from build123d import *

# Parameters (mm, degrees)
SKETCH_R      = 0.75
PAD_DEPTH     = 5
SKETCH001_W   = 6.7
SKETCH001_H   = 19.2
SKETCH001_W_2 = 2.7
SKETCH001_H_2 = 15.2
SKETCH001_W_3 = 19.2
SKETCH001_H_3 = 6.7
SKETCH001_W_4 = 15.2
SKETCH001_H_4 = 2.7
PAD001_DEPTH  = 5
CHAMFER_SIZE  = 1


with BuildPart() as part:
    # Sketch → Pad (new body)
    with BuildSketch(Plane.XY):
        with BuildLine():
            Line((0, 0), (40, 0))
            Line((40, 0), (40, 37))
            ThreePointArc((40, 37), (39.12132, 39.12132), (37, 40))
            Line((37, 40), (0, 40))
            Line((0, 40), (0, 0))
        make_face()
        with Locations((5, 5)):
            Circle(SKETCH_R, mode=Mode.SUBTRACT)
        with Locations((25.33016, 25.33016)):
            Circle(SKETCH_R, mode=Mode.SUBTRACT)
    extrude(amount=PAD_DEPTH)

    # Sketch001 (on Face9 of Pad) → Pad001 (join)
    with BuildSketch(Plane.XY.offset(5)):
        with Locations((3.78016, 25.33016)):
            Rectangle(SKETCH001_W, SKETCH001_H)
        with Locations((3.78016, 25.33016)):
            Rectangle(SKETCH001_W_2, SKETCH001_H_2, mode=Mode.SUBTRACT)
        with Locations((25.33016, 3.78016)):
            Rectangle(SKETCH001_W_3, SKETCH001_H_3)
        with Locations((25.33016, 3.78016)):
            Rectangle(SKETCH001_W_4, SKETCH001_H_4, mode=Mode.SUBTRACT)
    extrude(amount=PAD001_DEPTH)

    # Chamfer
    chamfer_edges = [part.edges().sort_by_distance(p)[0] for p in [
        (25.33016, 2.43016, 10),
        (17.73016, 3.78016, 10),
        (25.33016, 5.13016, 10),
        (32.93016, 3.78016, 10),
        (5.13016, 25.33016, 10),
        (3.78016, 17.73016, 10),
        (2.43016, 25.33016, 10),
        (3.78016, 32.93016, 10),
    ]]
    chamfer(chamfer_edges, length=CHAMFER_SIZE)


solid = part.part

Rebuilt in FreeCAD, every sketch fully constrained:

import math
import FreeCAD as App
import Part
import Sketcher
Q = App.Units.Quantity


def edges_at(feature, points):
    """Names of the edges that pass closest to the given points."""
    edges = feature.Shape.Edges
    near = lambda p: min(range(len(edges)), key=lambda i: edges[i].distToShape(Part.Vertex(*p))[0])
    return sorted({f"Edge{near(p) + 1}" for p in points})

doc = App.newDocument("Part")
body = doc.addObject("PartDesign::Body", "Body")

sketch1 = body.newObject("Sketcher::SketchObject", "Sketch")
sketch1.AttachmentSupport = (doc.getObject("XY_Plane"), [""])
sketch1.MapMode = "FlatFace"
sketch1.addGeometry([
    Part.LineSegment(App.Vector(0, 0, 0), App.Vector(40, 0, 0)),
    Part.LineSegment(App.Vector(40, 0, 0), App.Vector(40, 37, 0)),
    Part.ArcOfCircle(Part.Circle(App.Vector(37, 37, 0), App.Vector(0, 0, 1), 3), math.radians(0), math.radians(90)),
    Part.LineSegment(App.Vector(37, 40, 0), App.Vector(0, 40, 0)),
    Part.LineSegment(App.Vector(0, 40, 0), App.Vector(0, 0, 0)),
    Part.Circle(App.Vector(5, 5, 0), App.Vector(0, 0, 1), 0.8),
    Part.Circle(App.Vector(25.3, 25.3, 0), App.Vector(0, 0, 1), 0.8),
], False)
sketch1.addConstraint([
    Sketcher.Constraint("Coincident", 0, 2, 1, 1),
    Sketcher.Constraint("Tangent", 1, 2, 2, 1),
    Sketcher.Constraint("Tangent", 2, 2, 3, 1),
    Sketcher.Constraint("Coincident", 3, 2, 4, 1),
    Sketcher.Constraint("Coincident", 4, 2, 0, 1),
    Sketcher.Constraint("Horizontal", 0),
    Sketcher.Constraint("Vertical", 1),
    Sketcher.Constraint("Horizontal", 3),
    Sketcher.Constraint("Vertical", 4),
    Sketcher.Constraint("Coincident", 4, 2, -1, 1),
    Sketcher.Constraint("Equal", 5, 6),
    Sketcher.Constraint("Equal", 3, 1),
    Sketcher.Constraint("Radius", 2, Q("3.000001 mm")),
    Sketcher.Constraint("Diameter", 5, Q("1.5 mm")),
    Sketcher.Constraint("DistanceX", 0, 1, 0, 2, Q("40 mm")),
    Sketcher.Constraint("DistanceX", -1, 1, 5, 3, Q("5 mm")),
    Sketcher.Constraint("DistanceY", -1, 1, 5, 3, Q("5 mm")),
    Sketcher.Constraint("DistanceX", -1, 1, 6, 3, Q("25.33016 mm")),
    Sketcher.Constraint("DistanceY", -1, 1, 6, 3, Q("25.33016 mm")),
])
pad1 = body.newObject("PartDesign::Pad", "Pad")
pad1.Profile = sketch1
pad1.Length = 5

sketch2 = body.newObject("Sketcher::SketchObject", "Sketch001")
sketch2.AttachmentSupport = (doc.getObject("XY_Plane"), [""])
sketch2.MapMode = "FlatFace"
sketch2.AttachmentOffset = App.Placement(App.Vector(0, 0, 5), App.Rotation())
sketch2.addGeometry([
    Part.LineSegment(App.Vector(0.4, 34.9, 0), App.Vector(0.4, 15.7, 0)),
    Part.LineSegment(App.Vector(0.4, 15.7, 0), App.Vector(7.1, 15.7, 0)),
    Part.LineSegment(App.Vector(7.1, 15.7, 0), App.Vector(7.1, 34.9, 0)),
    Part.LineSegment(App.Vector(7.1, 34.9, 0), App.Vector(0.4, 34.9, 0)),
    Part.LineSegment(App.Vector(5.1, 17.7, 0), App.Vector(2.4, 17.7, 0)),
    Part.LineSegment(App.Vector(2.4, 17.7, 0), App.Vector(2.4, 32.9, 0)),
    Part.LineSegment(App.Vector(2.4, 32.9, 0), App.Vector(5.1, 32.9, 0)),
    Part.LineSegment(App.Vector(5.1, 32.9, 0), App.Vector(5.1, 17.7, 0)),
    Part.LineSegment(App.Vector(15.7, 7.1, 0), App.Vector(15.7, 0.4, 0)),
    Part.LineSegment(App.Vector(15.7, 0.4, 0), App.Vector(34.9, 0.4, 0)),
    Part.LineSegment(App.Vector(34.9, 0.4, 0), App.Vector(34.9, 7.1, 0)),
    Part.LineSegment(App.Vector(34.9, 7.1, 0), App.Vector(15.7, 7.1, 0)),
    Part.LineSegment(App.Vector(32.9, 2.4, 0), App.Vector(17.7, 2.4, 0)),
    Part.LineSegment(App.Vector(17.7, 2.4, 0), App.Vector(17.7, 5.1, 0)),
    Part.LineSegment(App.Vector(17.7, 5.1, 0), App.Vector(32.9, 5.1, 0)),
    Part.LineSegment(App.Vector(32.9, 5.1, 0), App.Vector(32.9, 2.4, 0)),
], False)
sketch2.addConstraint([
    Sketcher.Constraint("Coincident", 0, 2, 1, 1),
    Sketcher.Constraint("Coincident", 1, 2, 2, 1),
    Sketcher.Constraint("Coincident", 2, 2, 3, 1),
    Sketcher.Constraint("Coincident", 3, 2, 0, 1),
    Sketcher.Constraint("Coincident", 4, 2, 5, 1),
    Sketcher.Constraint("Coincident", 5, 2, 6, 1),
    Sketcher.Constraint("Coincident", 6, 2, 7, 1),
    Sketcher.Constraint("Coincident", 7, 2, 4, 1),
    Sketcher.Constraint("Coincident", 8, 2, 9, 1),
    Sketcher.Constraint("Coincident", 9, 2, 10, 1),
    Sketcher.Constraint("Coincident", 10, 2, 11, 1),
    Sketcher.Constraint("Coincident", 11, 2, 8, 1),
    Sketcher.Constraint("Coincident", 12, 2, 13, 1),
    Sketcher.Constraint("Coincident", 13, 2, 14, 1),
    Sketcher.Constraint("Coincident", 14, 2, 15, 1),
    Sketcher.Constraint("Coincident", 15, 2, 12, 1),
    Sketcher.Constraint("Vertical", 0),
    Sketcher.Constraint("Horizontal", 1),
    Sketcher.Constraint("Vertical", 2),
    Sketcher.Constraint("Horizontal", 3),
    Sketcher.Constraint("Horizontal", 4),
    Sketcher.Constraint("Vertical", 5),
    Sketcher.Constraint("Horizontal", 6),
    Sketcher.Constraint("Vertical", 7),
    Sketcher.Constraint("Vertical", 8),
    Sketcher.Constraint("Horizontal", 9),
    Sketcher.Constraint("Vertical", 10),
    Sketcher.Constraint("Horizontal", 11),
    Sketcher.Constraint("Horizontal", 12),
    Sketcher.Constraint("Vertical", 13),
    Sketcher.Constraint("Horizontal", 14),
    Sketcher.Constraint("Vertical", 15),
    Sketcher.Constraint("Equal", 11, 0),
    Sketcher.Constraint("Equal", 14, 5),
    Sketcher.Constraint("Equal", 3, 8),
    Sketcher.Constraint("Equal", 6, 13),
    Sketcher.Constraint("DistanceX", 1, 1, 1, 2, Q("6.7 mm")),
    Sketcher.Constraint("DistanceX", 4, 2, 4, 1, Q("2.7 mm")),
    Sketcher.Constraint("DistanceX", 9, 1, 9, 2, Q("19.2 mm")),
    Sketcher.Constraint("DistanceX", 12, 2, 12, 1, Q("15.2 mm")),
    Sketcher.Constraint("DistanceX", 0, 2, 4, 2, Q("2 mm")),
    Sketcher.Constraint("DistanceY", 0, 2, 4, 2, Q("2 mm")),
    Sketcher.Constraint("DistanceX", 8, 2, 12, 2, Q("2 mm")),
    Sketcher.Constraint("DistanceY", 8, 2, 12, 2, Q("2 mm")),
    Sketcher.Constraint("DistanceX", 1, 2, 8, 2, Q("8.6 mm")),
    Sketcher.Constraint("DistanceY", 8, 2, 1, 2, Q("15.3 mm")),
    Sketcher.Constraint("DistanceX", -1, 1, 0, 2, Q("0.43016 mm")),
    Sketcher.Constraint("DistanceY", -1, 1, 0, 2, Q("15.73016 mm")),
])
pad2 = body.newObject("PartDesign::Pad", "Pad001")
pad2.Profile = sketch2
pad2.Length = 5
doc.recompute()

chamfer = body.newObject("PartDesign::Chamfer", "Chamfer")
chamfer.Base = (pad2, edges_at(pad2, [
    (25.33, 2.43, 10),
    (17.73, 3.78, 10),
    (25.33, 5.13, 10),
    (32.93, 3.78, 10),
    (5.13, 25.33, 10),
    (3.78, 17.73, 10),
    (2.43, 25.33, 10),
    (3.78, 32.93, 10),
]))
chamfer.Size = 1

doc.recompute()
